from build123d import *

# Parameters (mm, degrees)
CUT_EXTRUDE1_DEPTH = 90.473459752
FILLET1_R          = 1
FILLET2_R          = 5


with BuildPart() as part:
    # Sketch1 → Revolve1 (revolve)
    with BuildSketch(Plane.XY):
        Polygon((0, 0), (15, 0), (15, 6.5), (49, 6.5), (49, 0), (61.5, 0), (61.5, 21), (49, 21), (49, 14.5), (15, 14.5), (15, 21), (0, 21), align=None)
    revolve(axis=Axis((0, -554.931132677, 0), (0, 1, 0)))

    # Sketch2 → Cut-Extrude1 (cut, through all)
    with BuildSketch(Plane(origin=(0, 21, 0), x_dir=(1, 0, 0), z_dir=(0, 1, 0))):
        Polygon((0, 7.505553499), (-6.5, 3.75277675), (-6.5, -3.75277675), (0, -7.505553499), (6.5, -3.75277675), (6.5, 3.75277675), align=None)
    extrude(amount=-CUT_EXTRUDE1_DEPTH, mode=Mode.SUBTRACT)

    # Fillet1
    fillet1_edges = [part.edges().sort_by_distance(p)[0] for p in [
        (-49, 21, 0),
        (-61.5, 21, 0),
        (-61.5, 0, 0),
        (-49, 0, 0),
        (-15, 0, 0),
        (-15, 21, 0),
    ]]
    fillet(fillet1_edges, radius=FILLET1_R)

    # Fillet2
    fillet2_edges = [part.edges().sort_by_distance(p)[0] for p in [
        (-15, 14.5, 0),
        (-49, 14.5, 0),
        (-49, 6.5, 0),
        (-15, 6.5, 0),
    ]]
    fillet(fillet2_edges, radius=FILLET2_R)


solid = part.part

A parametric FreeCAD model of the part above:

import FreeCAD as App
import Part
import Sketcher
Q = App.Units.Quantity


def edges_at(feature, points):
    """Names of the edges that pass closest to the given points."""
    edges = feature.Shape.Edges
    near = lambda p: min(range(len(edges)), key=lambda i: edges[i].distToShape(Part.Vertex(*p))[0])
    return sorted({f"Edge{near(p) + 1}" for p in points})


def add_polygon(sketch, points):
    """Adds a closed chain of lines whose ends are joined by coincident constraints."""
    first, n = sketch.GeometryCount, len(points)
    for a, b in zip(points, points[1:] + points[:1]):
        sketch.addGeometry(Part.LineSegment(App.Vector(*a, 0), App.Vector(*b, 0)), False)
    for i in range(n):
        sketch.addConstraint(Sketcher.Constraint("Coincident", first + i, 2, first + (i + 1) % n, 1))

doc = App.newDocument("Part")
params = doc.addObject("Spreadsheet::Sheet", "Params")
for row, (alias, value) in enumerate([
    ("sketch1_width", "15 mm"),
    ("sketch1_width2", "34 mm"),
    ("sketch1_height", "21 mm"),
    ("sketch1_width3", "12.5 mm"),
    ("sketch1_height2", "6.5 mm"),
    ("revolution_angle", "360 deg"),
    ("fillet_radius", "1 mm"),
    ("fillet2_radius", "5 mm"),
], start=1):
    params.set(f"A{row}", alias)
    params.set(f"B{row}", "=" + value)
    params.setAlias(f"B{row}", alias)

body = doc.addObject("PartDesign::Body", "Body")

# Sketch on XY plane
sketch1 = body.newObject("Sketcher::SketchObject", "Sketch")
sketch1.AttachmentSupport = (doc.getObject("XY_Plane"), [""])
sketch1.MapMode = "FlatFace"
add_polygon(sketch1, [(0, 0), (15, 0), (15, 6), (49, 6), (49, 0), (62, 0), (62, 21), (49, 21), (49, 14), (15, 14), (15, 21), (0, 21)])  # lines 0-11
sketch1.addConstraint([
    Sketcher.Constraint("Horizontal", 0),
    Sketcher.Constraint("Vertical", 1),
    Sketcher.Constraint("Horizontal", 2),
    Sketcher.Constraint("Vertical", 3),
    Sketcher.Constraint("Horizontal", 4),
    Sketcher.Constraint("Vertical", 5),
    Sketcher.Constraint("Horizontal", 6),
    Sketcher.Constraint("Vertical", 7),
    Sketcher.Constraint("Horizontal", 8),
    Sketcher.Constraint("Vertical", 9),
    Sketcher.Constraint("Horizontal", 10),
    Sketcher.Constraint("Vertical", 11),
    Sketcher.Constraint("Coincident", 11, 2, -1, 1),
    Sketcher.Constraint("PointOnObject", 3, 2, -1),
    Sketcher.Constraint("Horizontal", 6, 2, 9, 2),
    Sketcher.Constraint("Vertical", 3, 2, 6, 2),
    Sketcher.Constraint("Vertical", 1, 2, 8, 2),
    Sketcher.Constraint("Equal", 3, 7),
    Sketcher.Constraint("DistanceX", 0, 1, 0, 2, 15.0),
    Sketcher.Constraint("DistanceX", 2, 1, 2, 2, 34.0),
    Sketcher.Constraint("DistanceY", 5, 1, 5, 2, 21.0),
    Sketcher.Constraint("DistanceX", 4, 1, 4, 2, 12.5),
    Sketcher.Constraint("DistanceY", 1, 1, 1, 2, 6.5),
])
sketch1.setExpression("Constraints[30]", "Params.sketch1_width")
sketch1.setExpression("Constraints[31]", "Params.sketch1_width2")
sketch1.setExpression("Constraints[32]", "Params.sketch1_height")
sketch1.setExpression("Constraints[33]", "Params.sketch1_width3")
sketch1.setExpression("Constraints[34]", "Params.sketch1_height2")
revolution = body.newObject("PartDesign::Revolution", "Revolution")
revolution.Profile = sketch1
revolution.ReferenceAxis = (sketch1, ["V_Axis"])
revolution.setExpression("Angle", "Params.revolution_angle")

# Sketch on XZ plane
sketch2 = body.newObject("Sketcher::SketchObject", "Sketch001")
sketch2.AttachmentSupport = (doc.getObject("XZ_Plane"), [""])
sketch2.MapMode = "FlatFace"
sketch2.AttachmentOffset = App.Placement(App.Vector(0, 0, -21), App.Rotation())
add_polygon(sketch2, [(0, -8), (-6, -4), (-6, 4), (0, 8), (6, 4), (6, -4)])  # lines 0-5
sketch2.addConstraint([
    Sketcher.Constraint("Vertical", 1),
    Sketcher.Constraint("Vertical", 4),
    Sketcher.Constraint("Symmetric", 0, 2, 3, 2, -1, 1),
    Sketcher.Constraint("Symmetric", 2, 2, 5, 2, -1, 1),
    Sketcher.Constraint("PointOnObject", 2, 2, -2),
    Sketcher.Constraint("Parallel", 2, 5),
    Sketcher.Constraint("Horizontal", 1, 2, 3, 2),
    Sketcher.Constraint("Angle", 0, Q("150 deg")),
    Sketcher.Constraint("DistanceX", 1, 2, 3, 2, 13.0),
    Sketcher.Constraint("DistanceY", 1, 1, 1, 2, 7.505554),
])
pocket1 = body.newObject("PartDesign::Pocket", "Pocket")
pocket1.Profile = sketch2
pocket1.Type = "ThroughAll"
pocket1.Reversed = True
doc.recompute()

fillet = body.newObject("PartDesign::Fillet", "Fillet")
fillet.Base = (pocket1, edges_at(pocket1, [
    (-49, 21, 0),
    (-61.5, 21, 0),
    (-61.5, 0, 0),
    (-49, 0, 0),
    (-15, 0, 0),
    (-15, 21, 0),
]))
fillet.setExpression("Radius", "Params.fillet_radius")
doc.recompute()

fillet2 = body.newObject("PartDesign::Fillet", "Fillet001")
fillet2.Base = (fillet, edges_at(fillet, [
    (-15, 14.5, 0),
    (-49, 14.5, 0),
    (-49, 6.5, 0),
    (-15, 6.5, 0),
]))
fillet2.setExpression("Radius", "Params.fillet2_radius")

doc.recompute()
